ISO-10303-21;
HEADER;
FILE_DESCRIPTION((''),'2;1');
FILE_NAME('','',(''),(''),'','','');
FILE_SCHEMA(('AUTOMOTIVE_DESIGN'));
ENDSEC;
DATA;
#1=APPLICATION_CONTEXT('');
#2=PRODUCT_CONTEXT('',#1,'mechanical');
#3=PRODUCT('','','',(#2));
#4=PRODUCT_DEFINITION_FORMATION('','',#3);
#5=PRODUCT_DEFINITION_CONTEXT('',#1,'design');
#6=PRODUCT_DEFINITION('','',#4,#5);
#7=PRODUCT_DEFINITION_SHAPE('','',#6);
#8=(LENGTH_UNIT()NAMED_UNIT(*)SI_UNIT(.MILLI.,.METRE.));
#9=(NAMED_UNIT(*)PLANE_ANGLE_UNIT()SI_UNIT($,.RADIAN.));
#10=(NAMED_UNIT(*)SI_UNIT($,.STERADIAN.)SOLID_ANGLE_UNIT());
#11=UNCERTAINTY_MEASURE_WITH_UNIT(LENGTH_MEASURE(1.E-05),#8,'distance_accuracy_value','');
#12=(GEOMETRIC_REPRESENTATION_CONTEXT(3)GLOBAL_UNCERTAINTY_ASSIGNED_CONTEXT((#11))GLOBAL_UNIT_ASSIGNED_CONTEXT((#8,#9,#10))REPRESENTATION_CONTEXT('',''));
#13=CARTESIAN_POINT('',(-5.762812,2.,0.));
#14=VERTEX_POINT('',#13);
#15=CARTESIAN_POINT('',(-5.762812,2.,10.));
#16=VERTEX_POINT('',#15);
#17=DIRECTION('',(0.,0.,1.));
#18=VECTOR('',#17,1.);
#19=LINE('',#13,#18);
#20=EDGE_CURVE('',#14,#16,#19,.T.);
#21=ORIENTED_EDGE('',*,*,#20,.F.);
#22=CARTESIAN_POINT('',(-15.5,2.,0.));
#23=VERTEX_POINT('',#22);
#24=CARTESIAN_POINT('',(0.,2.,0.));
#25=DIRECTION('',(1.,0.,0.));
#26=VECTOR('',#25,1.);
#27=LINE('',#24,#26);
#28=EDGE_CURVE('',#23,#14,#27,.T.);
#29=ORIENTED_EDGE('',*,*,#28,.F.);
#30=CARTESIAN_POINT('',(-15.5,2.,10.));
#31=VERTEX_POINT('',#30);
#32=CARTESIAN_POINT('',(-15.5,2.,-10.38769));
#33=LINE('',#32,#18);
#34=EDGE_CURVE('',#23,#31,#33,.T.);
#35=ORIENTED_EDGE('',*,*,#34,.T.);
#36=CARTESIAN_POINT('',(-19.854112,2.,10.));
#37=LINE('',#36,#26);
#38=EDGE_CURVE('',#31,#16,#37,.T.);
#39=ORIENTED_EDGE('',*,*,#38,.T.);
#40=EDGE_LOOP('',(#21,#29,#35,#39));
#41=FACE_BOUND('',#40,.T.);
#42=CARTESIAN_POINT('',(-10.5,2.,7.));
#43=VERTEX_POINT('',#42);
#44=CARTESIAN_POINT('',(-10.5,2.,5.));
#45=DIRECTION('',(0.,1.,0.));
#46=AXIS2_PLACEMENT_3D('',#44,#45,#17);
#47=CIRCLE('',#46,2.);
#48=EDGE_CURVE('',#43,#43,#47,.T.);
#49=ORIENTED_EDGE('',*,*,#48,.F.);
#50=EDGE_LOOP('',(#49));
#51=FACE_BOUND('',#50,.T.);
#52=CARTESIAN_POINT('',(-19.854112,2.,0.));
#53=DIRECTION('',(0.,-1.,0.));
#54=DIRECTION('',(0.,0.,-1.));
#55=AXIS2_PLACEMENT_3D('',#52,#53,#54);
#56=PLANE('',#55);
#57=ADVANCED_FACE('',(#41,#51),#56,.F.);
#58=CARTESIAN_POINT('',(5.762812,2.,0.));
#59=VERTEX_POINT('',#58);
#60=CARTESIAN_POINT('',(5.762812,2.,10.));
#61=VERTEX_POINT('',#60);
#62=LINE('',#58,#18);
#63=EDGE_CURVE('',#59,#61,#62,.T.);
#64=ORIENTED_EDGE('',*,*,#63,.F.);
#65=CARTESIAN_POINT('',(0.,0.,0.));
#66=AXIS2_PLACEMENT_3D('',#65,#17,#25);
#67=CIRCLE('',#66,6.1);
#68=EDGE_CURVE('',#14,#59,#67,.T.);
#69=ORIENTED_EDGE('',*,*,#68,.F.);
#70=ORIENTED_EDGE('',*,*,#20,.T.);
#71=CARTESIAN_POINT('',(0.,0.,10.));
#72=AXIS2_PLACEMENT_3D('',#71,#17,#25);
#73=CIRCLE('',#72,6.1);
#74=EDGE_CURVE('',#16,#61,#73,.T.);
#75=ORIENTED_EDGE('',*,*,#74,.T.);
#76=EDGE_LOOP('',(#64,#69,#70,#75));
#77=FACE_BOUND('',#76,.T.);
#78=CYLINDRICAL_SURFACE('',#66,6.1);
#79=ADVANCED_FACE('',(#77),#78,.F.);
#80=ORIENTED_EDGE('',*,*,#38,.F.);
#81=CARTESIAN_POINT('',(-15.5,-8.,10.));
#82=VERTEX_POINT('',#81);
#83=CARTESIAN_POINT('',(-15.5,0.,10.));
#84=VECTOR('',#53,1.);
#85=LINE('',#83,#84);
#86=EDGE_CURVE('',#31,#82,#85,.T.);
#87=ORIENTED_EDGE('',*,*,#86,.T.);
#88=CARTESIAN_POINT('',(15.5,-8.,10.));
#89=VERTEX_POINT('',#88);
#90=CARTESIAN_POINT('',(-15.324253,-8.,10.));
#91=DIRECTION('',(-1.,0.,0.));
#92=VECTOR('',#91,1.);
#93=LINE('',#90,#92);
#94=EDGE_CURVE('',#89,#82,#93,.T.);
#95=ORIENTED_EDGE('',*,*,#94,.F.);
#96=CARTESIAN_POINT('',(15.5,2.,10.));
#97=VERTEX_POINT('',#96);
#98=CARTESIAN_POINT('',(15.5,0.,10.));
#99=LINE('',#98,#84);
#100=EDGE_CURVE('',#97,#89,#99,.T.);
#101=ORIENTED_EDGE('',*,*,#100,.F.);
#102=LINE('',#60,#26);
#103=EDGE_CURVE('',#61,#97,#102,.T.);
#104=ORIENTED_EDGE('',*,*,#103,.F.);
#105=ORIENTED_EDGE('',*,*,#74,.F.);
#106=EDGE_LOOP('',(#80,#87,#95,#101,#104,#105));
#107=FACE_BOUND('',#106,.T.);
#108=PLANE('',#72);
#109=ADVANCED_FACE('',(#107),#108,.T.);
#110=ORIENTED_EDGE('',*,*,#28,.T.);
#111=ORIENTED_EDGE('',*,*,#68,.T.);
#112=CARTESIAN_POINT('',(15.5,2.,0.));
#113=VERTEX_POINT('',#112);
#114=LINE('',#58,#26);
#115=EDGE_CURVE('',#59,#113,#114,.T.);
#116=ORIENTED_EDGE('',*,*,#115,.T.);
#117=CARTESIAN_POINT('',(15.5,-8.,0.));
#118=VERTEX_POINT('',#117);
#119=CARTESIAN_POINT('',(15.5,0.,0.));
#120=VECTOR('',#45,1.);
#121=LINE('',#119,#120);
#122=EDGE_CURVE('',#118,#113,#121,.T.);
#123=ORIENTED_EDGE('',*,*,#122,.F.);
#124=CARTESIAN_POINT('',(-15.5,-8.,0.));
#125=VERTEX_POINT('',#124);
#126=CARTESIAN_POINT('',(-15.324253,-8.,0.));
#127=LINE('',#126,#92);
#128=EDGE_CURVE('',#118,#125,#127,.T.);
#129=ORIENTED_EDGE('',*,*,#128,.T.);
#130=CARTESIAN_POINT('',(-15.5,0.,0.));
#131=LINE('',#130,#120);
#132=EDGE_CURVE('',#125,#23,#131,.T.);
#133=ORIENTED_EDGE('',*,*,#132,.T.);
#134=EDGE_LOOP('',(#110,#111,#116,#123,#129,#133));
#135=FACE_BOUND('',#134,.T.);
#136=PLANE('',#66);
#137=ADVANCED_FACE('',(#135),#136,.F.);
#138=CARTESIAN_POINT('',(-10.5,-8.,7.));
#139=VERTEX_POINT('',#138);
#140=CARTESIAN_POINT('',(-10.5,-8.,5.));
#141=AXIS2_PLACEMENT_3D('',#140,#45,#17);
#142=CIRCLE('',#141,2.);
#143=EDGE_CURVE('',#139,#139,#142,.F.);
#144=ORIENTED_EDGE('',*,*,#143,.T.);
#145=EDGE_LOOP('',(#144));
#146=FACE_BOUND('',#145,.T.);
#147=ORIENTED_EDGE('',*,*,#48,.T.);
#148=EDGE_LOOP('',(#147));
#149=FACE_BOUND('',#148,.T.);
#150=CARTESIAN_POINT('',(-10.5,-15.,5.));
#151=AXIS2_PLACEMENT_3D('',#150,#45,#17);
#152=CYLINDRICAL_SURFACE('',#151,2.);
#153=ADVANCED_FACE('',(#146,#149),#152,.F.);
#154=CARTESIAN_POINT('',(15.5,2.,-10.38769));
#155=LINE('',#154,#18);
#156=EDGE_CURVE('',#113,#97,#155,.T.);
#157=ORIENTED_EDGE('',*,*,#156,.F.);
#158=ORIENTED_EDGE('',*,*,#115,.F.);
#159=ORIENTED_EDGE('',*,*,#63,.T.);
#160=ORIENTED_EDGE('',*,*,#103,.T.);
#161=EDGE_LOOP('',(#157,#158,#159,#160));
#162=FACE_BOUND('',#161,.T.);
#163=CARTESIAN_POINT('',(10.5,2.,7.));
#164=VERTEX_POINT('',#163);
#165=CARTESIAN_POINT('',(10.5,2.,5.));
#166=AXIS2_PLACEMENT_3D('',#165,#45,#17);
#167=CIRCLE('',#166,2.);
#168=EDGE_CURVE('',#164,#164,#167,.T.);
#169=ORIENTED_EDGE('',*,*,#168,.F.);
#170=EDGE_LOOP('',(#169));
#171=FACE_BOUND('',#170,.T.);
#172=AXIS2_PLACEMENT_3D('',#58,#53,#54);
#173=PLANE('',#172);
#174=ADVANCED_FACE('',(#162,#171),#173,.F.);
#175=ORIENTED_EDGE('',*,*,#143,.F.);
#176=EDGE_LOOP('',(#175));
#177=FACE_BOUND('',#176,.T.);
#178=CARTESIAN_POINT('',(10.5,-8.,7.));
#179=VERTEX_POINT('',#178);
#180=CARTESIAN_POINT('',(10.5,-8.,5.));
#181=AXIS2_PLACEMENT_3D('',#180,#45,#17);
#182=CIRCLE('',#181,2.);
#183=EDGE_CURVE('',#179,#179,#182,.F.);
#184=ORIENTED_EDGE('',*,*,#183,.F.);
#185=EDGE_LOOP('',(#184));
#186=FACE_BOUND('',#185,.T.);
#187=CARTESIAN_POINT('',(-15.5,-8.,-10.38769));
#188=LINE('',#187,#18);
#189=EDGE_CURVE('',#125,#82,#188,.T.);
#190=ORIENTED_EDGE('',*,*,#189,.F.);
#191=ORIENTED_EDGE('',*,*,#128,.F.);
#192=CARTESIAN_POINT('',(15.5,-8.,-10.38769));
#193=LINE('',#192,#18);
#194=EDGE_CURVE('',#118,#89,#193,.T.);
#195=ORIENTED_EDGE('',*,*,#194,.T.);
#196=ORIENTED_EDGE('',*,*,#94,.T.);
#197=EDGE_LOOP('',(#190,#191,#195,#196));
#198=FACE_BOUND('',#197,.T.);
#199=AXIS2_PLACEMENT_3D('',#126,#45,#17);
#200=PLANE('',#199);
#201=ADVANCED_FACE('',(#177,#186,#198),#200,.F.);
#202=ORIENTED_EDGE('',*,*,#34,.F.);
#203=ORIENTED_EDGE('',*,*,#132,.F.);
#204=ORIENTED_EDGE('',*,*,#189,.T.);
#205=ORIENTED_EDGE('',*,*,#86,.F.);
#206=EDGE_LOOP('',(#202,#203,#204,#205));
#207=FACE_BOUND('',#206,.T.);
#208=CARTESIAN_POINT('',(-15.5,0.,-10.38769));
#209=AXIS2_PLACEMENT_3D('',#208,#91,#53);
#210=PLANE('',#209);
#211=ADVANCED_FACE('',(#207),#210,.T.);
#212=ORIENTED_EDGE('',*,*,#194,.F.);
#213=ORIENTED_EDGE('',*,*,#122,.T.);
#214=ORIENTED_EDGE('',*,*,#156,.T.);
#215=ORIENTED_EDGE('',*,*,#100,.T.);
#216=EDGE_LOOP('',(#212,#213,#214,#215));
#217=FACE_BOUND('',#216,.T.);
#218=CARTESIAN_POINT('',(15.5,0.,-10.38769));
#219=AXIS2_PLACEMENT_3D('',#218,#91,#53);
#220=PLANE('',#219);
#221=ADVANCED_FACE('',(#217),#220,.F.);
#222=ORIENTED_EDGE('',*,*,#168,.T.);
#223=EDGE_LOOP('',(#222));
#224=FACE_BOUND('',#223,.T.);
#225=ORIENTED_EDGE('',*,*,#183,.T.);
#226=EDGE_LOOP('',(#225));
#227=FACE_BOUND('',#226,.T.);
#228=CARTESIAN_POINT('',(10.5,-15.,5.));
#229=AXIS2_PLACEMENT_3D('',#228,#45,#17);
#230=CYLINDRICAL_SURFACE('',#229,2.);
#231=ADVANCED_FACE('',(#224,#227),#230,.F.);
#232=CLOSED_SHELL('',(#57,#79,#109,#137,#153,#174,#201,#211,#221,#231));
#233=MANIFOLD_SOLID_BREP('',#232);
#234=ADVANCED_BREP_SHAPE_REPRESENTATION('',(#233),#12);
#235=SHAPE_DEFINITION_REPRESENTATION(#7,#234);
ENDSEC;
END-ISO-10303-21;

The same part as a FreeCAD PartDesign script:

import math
import FreeCAD as App
import Part
import Sketcher
from FreeCAD import Vector
Q = App.Units.Quantity

doc = App.newDocument("Part")
params = doc.addObject("Spreadsheet::Sheet", "Params")
for row, (alias, value) in enumerate([
    ("sketch1_diameter", "30 mm"),
    ("pad1_length", "10 mm"),
    ("sketch2_radius", "6.1 mm"),
    ("sketch2_width", "40 mm"),
    ("pocket1_length", "10 mm"),
    ("sketch3_diameter", "4 mm"),
    ("sketch5_radius", "15 mm"),
    ("sketch5_height", "10 mm"),
    ("pad2_length", "10 mm"),
], start=1):
    params.set(f"A{row}", alias)
    params.set(f"B{row}", "=" + value)
    params.setAlias(f"B{row}", alias)

body = doc.addObject("PartDesign::Body", "Body")

# Sketch on XY plane
sketch1 = body.newObject("Sketcher::SketchObject", "Sketch")
sketch1.AttachmentSupport = (doc.getObject("XY_Plane"), [""])
sketch1.MapMode = "FlatFace"
sketch1.addGeometry(Part.Circle(Vector(0, 0, 0), Vector(0, 0, 1), 15), False)
sketch1.addConstraint([
    Sketcher.Constraint("Coincident", 0, 3, -1, 1),
    Sketcher.Constraint("Diameter", 0, Q("30 mm")),
])
sketch1.setExpression("Constraints[1]", "Params.sketch1_diameter")
pad1 = body.newObject("PartDesign::Pad", "Pad")
pad1.Profile = sketch1
pad1.setExpression("Length", "Params.pad1_length")

# Sketch on XY plane
sketch2 = body.newObject("Sketcher::SketchObject", "Sketch001")
sketch2.AttachmentSupport = (doc.getObject("XY_Plane"), [""])
sketch2.MapMode = "FlatFace"
sketch2.AttachmentOffset = App.Placement(Vector(0, 0, 10), App.Rotation())
sketch2.addGeometry([
    Part.LineSegment(Vector(5.762812, 2, 0), Vector(20.145888, 2, 0)),  # 0
    Part.LineSegment(Vector(20.145888, 2, 0), Vector(20.145888, 26.748935, 0)),  # 1
    Part.LineSegment(Vector(20.145888, 26.748935, 0), Vector(-19.854112, 26.748935, 0)),  # 2
    Part.LineSegment(Vector(-19.854112, 26.748935, 0), Vector(-19.854112, 2, 0)),  # 3
    Part.LineSegment(Vector(-19.854112, 2, 0), Vector(-5.762812, 2, 0)),  # 4
    Part.ArcOfCircle(Part.Circle(Vector(0, 0, 0), Vector(0, 0, 1), 6.1), math.radians(160.860526), math.radians(379.139474)),  # 5
], False)
sketch2.addConstraint([
    Sketcher.Constraint("Coincident", 0, 2, 1, 1),
    Sketcher.Constraint("Coincident", 1, 2, 2, 1),
    Sketcher.Constraint("Coincident", 2, 2, 3, 1),
    Sketcher.Constraint("Coincident", 3, 2, 4, 1),
    Sketcher.Constraint("Coincident", 4, 2, 5, 1),
    Sketcher.Constraint("Coincident", 5, 2, 0, 1),
    Sketcher.Constraint("Horizontal", 0),
    Sketcher.Constraint("Vertical", 1),
    Sketcher.Constraint("Horizontal", 2),
    Sketcher.Constraint("Vertical", 3),
    Sketcher.Constraint("Horizontal", 4),
    Sketcher.Constraint("Coincident", 5, 3, -1, 1),
    Sketcher.Constraint("Horizontal", 0, 2, 3, 2),
    Sketcher.Constraint("Radius", 5, Q("6.1 mm")),
    Sketcher.Constraint("DistanceX", 2, 2, 2, 1, Q("40 mm")),
    Sketcher.Constraint("DistanceY", -1, 1, 0, 2, Q("2 mm")),
    Sketcher.Constraint("DistanceX", 4, 1, 4, 2, Q("14.0913 mm")),
    Sketcher.Constraint("DistanceY", 1, 1, 1, 2, Q("24.748935 mm")),
])
sketch2.setExpression("Constraints[13]", "Params.sketch2_radius")
sketch2.setExpression("Constraints[14]", "Params.sketch2_width")
pocket1 = body.newObject("PartDesign::Pocket", "Pocket")
pocket1.Profile = sketch2
pocket1.setExpression("Length", "Params.pocket1_length")

# Sketch on XZ plane
sketch3 = body.newObject("Sketcher::SketchObject", "Sketch002")
sketch3.AttachmentSupport = (doc.getObject("XZ_Plane"), [""])
sketch3.MapMode = "FlatFace"
sketch3.AttachmentOffset = App.Placement(Vector(0, 0, -2), App.Rotation())
sketch3.addGeometry([
    Part.Circle(Vector(-10.5, 5, 0), Vector(0, 0, 1), 2),
    Part.Circle(Vector(10.5, 5, 0), Vector(0, 0, 1), 2),
], False)
sketch3.addConstraint([
    Sketcher.Constraint("Equal", 0, 1),
    Sketcher.Constraint("Symmetric", 0, 3, 1, 3, -2),
    Sketcher.Constraint("Diameter", 0, Q("4 mm")),
    Sketcher.Constraint("DistanceY", -1, 1, 0, 3, Q("5 mm")),
    Sketcher.Constraint("DistanceX", 0, 3, 1, 3, Q("21 mm")),
])
sketch3.setExpression("Constraints[2]", "Params.sketch3_diameter")
pocket2 = body.newObject("PartDesign::Pocket", "Pocket001")
pocket2.Profile = sketch3
pocket2.Type = "ThroughAll"
pocket2.Reversed = True

# Sketch on XY plane
sketch4 = body.newObject("Sketcher::SketchObject", "Sketch003")
sketch4.AttachmentSupport = (doc.getObject("XY_Plane"), [""])
sketch4.MapMode = "FlatFace"
sketch4.AttachmentOffset = App.Placement(Vector(0, 0, 10), App.Rotation())
sketch4.addGeometry([
    Part.LineSegment(Vector(-15.324253, -8, 0), Vector(-15.324253, -18.688803, 0)),
    Part.LineSegment(Vector(-15.324253, -18.688803, 0), Vector(15.324253, -18.688803, 0)),
    Part.LineSegment(Vector(15.324253, -18.688803, 0), Vector(15.324253, -8, 0)),
    Part.LineSegment(Vector(15.324253, -8, 0), Vector(-15.324253, -8, 0)),
], False)
sketch4.addConstraint([
    Sketcher.Constraint("Coincident", 0, 2, 1, 1),
    Sketcher.Constraint("Coincident", 1, 2, 2, 1),
    Sketcher.Constraint("Coincident", 2, 2, 3, 1),
    Sketcher.Constraint("Coincident", 3, 2, 0, 1),
    Sketcher.Constraint("Vertical", 0),
    Sketcher.Constraint("Horizontal", 1),
    Sketcher.Constraint("Vertical", 2),
    Sketcher.Constraint("Horizontal", 3),
    Sketcher.Constraint("DistanceY", 2, 2, -1, 1, Q("8 mm")),
    Sketcher.Constraint("DistanceX", 1, 1, 1, 2, Q("30.648507 mm")),
    Sketcher.Constraint("DistanceY", 0, 2, 0, 1, Q("10.688803 mm")),
    Sketcher.Constraint("DistanceX", 0, 2, -1, 1, Q("15.324253 mm")),
])
pocket3 = body.newObject("PartDesign::Pocket", "Pocket002")
pocket3.Profile = sketch4
pocket3.Type = "ThroughAll"

# Sketch on XY plane
sketch5 = body.newObject("Sketcher::SketchObject", "Sketch004")
sketch5.AttachmentSupport = (doc.getObject("XY_Plane"), [""])
sketch5.MapMode = "FlatFace"
sketch5.addGeometry([
    Part.LineSegment(Vector(-14.866069, 2, 0), Vector(-15.5, 2, 0)),  # 0
    Part.LineSegment(Vector(-15.5, 2, 0), Vector(-15.5, -8, 0)),  # 1
    Part.LineSegment(Vector(-15.5, -8, 0), Vector(-12.688578, -8, 0)),  # 2
    Part.ArcOfCircle(Part.Circle(Vector(0, 0, 0), Vector(0, 0, 1), 15), math.radians(172.337744), math.radians(212.230953)),  # 3
    Part.ArcOfCircle(Part.Circle(Vector(0, 0, 0), Vector(0, 0, 1), 15), math.radians(-32.230953), math.radians(7.662256)),  # 4
    Part.LineSegment(Vector(12.688578, -8, 0), Vector(15.5, -8, 0)),  # 5
    Part.LineSegment(Vector(15.5, -8, 0), Vector(15.5, 2, 0)),  # 6
    Part.LineSegment(Vector(15.5, 2, 0), Vector(14.866069, 2, 0)),  # 7
], False)
sketch5.addConstraint([
    Sketcher.Constraint("Coincident", 0, 2, 1, 1),
    Sketcher.Constraint("Coincident", 1, 2, 2, 1),
    Sketcher.Constraint("Coincident", 2, 2, 3, 2),
    Sketcher.Constraint("Coincident", 3, 1, 0, 1),
    Sketcher.Constraint("Coincident", 4, 1, 5, 1),
    Sketcher.Constraint("Coincident", 5, 2, 6, 1),
    Sketcher.Constraint("Coincident", 6, 2, 7, 1),
    Sketcher.Constraint("Coincident", 7, 2, 4, 2),
    Sketcher.Constraint("Horizontal", 0),
    Sketcher.Constraint("Vertical", 1),
    Sketcher.Constraint("Horizontal", 2),
    Sketcher.Constraint("Horizontal", 5),
    Sketcher.Constraint("Vertical", 6),
    Sketcher.Constraint("Horizontal", 7),
    Sketcher.Constraint("Coincident", 3, 3, -1, 1),
    Sketcher.Constraint("Coincident", 4, 3, -1, 1),
    Sketcher.Constraint("Equal", 3, 4),
    Sketcher.Constraint("Symmetric", 1, 2, 5, 2, -2),
    Sketcher.Constraint("Horizontal", 3, 1, 6, 2),
    Sketcher.Constraint("Radius", 3, Q("15 mm")),
    Sketcher.Constraint("DistanceY", 1, 2, 1, 1, Q("10 mm")),
    Sketcher.Constraint("DistanceY", -1, 1, 0, 2, Q("2 mm")),
    Sketcher.Constraint("DistanceX", 1, 2, 5, 2, Q("31 mm")),
])
sketch5.setExpression("Constraints[19]", "Params.sketch5_radius")
sketch5.setExpression("Constraints[20]", "Params.sketch5_height")
pad2 = body.newObject("PartDesign::Pad", "Pad001")
pad2.Profile = sketch5
pad2.setExpression("Length", "Params.pad2_length")

doc.recompute()
